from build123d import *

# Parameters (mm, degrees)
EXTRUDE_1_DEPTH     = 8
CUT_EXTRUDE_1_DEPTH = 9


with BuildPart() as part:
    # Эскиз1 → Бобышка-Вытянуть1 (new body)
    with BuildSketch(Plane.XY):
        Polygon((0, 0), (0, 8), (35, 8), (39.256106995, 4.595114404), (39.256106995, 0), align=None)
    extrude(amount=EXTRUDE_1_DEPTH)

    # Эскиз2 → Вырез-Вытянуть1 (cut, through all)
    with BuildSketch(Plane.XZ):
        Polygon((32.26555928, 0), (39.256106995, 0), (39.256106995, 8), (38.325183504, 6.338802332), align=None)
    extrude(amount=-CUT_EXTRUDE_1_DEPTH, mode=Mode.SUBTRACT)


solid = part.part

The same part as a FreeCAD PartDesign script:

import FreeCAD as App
import Part
import Sketcher
from FreeCAD import Vector

doc = App.newDocument("Part")
body = doc.addObject("PartDesign::Body", "Body")

# Sketch on XY plane
sketch1 = body.newObject("Sketcher::SketchObject", "Sketch")
sketch1.AttachmentSupport = (doc.getObject("XY_Plane"), [""])
sketch1.MapMode = "FlatFace"
sketch1.addGeometry(Part.LineSegment(Vector(0, 8, 0), Vector(0, 0, 0)), False)
sketch1.addGeometry(Part.LineSegment(Vector(0, 0, 0), Vector(39.3, 0, 0)), False)
sketch1.addGeometry(Part.LineSegment(Vector(39.3, 0, 0), Vector(39.3, 4.6, 0)), False)
sketch1.addGeometry(Part.LineSegment(Vector(39.3, 4.6, 0), Vector(35, 8, 0)), False)
sketch1.addGeometry(Part.LineSegment(Vector(35, 8, 0), Vector(0, 8, 0)), False)
sketch1.addConstraint(Sketcher.Constraint("Coincident", 0, 2, 1, 1))
sketch1.addConstraint(Sketcher.Constraint("Coincident", 1, 2, 2, 1))
sketch1.addConstraint(Sketcher.Constraint("Coincident", 2, 2, 3, 1))
sketch1.addConstraint(Sketcher.Constraint("Coincident", 3, 2, 4, 1))
sketch1.addConstraint(Sketcher.Constraint("Coincident", 4, 2, 0, 1))
sketch1.addConstraint(Sketcher.Constraint("Vertical", 0))
sketch1.addConstraint(Sketcher.Constraint("Horizontal", 1))
sketch1.addConstraint(Sketcher.Constraint("Vertical", 2))
sketch1.addConstraint(Sketcher.Constraint("Horizontal", 4))
sketch1.addConstraint(Sketcher.Constraint("Coincident", 0, 2, -1, 1))
sketch1.addConstraint(Sketcher.Constraint("DistanceX", 4, 2, 4, 1, 35.0))
sketch1.addConstraint(Sketcher.Constraint("DistanceY", 0, 2, 0, 1, 8.0))
sketch1.addConstraint(Sketcher.Constraint("DistanceX", 1, 1, 1, 2, 39.256107))
sketch1.addConstraint(Sketcher.Constraint("DistanceY", 2, 1, 2, 2, 4.595114))
pad1 = body.newObject("PartDesign::Pad", "Pad")
pad1.Profile = sketch1
pad1.Length = 8

# Sketch on XZ plane
sketch2 = body.newObject("Sketcher::SketchObject", "Sketch001")
sketch2.AttachmentSupport = (doc.getObject("XZ_Plane"), [""])
sketch2.MapMode = "FlatFace"
sketch2.addGeometry(Part.LineSegment(Vector(32.3, 0, 0), Vector(39.3, 0, 0)), False)
sketch2.addGeometry(Part.LineSegment(Vector(39.3, 0, 0), Vector(39.3, 8, 0)), False)
sketch2.addGeometry(Part.LineSegment(Vector(39.3, 8, 0), Vector(38.3, 6.3, 0)), False)
sketch2.addGeometry(Part.LineSegment(Vector(38.3, 6.3, 0), Vector(32.3, 0, 0)), False)
sketch2.addConstraint(Sketcher.Constraint("Coincident", 0, 2, 1, 1))
sketch2.addConstraint(Sketcher.Constraint("Coincident", 1, 2, 2, 1))
sketch2.addConstraint(Sketcher.Constraint("Coincident", 2, 2, 3, 1))
sketch2.addConstraint(Sketcher.Constraint("Coincident", 3, 2, 0, 1))
sketch2.addConstraint(Sketcher.Constraint("Horizontal", 0))
sketch2.addConstraint(Sketcher.Constraint("Vertical", 1))
sketch2.addConstraint(Sketcher.Constraint("PointOnObject", 0, 2, -1))
sketch2.addConstraint(Sketcher.Constraint("DistanceY", 1, 1, 1, 2, 8.0))
sketch2.addConstraint(Sketcher.Constraint("DistanceX", 0, 1, 0, 2, 6.990548))
sketch2.addConstraint(Sketcher.Constraint("DistanceX", -1, 1, 3, 2, 32.265559))
sketch2.addConstraint(Sketcher.Constraint("Distance", 2, 1.904257))
sketch2.addConstraint(Sketcher.Constraint("Distance", 3, 8.769234))
pocket1 = body.newObject("PartDesign::Pocket", "Pocket")
pocket1.Profile = sketch2
pocket1.Type = "ThroughAll"

doc.recompute()
